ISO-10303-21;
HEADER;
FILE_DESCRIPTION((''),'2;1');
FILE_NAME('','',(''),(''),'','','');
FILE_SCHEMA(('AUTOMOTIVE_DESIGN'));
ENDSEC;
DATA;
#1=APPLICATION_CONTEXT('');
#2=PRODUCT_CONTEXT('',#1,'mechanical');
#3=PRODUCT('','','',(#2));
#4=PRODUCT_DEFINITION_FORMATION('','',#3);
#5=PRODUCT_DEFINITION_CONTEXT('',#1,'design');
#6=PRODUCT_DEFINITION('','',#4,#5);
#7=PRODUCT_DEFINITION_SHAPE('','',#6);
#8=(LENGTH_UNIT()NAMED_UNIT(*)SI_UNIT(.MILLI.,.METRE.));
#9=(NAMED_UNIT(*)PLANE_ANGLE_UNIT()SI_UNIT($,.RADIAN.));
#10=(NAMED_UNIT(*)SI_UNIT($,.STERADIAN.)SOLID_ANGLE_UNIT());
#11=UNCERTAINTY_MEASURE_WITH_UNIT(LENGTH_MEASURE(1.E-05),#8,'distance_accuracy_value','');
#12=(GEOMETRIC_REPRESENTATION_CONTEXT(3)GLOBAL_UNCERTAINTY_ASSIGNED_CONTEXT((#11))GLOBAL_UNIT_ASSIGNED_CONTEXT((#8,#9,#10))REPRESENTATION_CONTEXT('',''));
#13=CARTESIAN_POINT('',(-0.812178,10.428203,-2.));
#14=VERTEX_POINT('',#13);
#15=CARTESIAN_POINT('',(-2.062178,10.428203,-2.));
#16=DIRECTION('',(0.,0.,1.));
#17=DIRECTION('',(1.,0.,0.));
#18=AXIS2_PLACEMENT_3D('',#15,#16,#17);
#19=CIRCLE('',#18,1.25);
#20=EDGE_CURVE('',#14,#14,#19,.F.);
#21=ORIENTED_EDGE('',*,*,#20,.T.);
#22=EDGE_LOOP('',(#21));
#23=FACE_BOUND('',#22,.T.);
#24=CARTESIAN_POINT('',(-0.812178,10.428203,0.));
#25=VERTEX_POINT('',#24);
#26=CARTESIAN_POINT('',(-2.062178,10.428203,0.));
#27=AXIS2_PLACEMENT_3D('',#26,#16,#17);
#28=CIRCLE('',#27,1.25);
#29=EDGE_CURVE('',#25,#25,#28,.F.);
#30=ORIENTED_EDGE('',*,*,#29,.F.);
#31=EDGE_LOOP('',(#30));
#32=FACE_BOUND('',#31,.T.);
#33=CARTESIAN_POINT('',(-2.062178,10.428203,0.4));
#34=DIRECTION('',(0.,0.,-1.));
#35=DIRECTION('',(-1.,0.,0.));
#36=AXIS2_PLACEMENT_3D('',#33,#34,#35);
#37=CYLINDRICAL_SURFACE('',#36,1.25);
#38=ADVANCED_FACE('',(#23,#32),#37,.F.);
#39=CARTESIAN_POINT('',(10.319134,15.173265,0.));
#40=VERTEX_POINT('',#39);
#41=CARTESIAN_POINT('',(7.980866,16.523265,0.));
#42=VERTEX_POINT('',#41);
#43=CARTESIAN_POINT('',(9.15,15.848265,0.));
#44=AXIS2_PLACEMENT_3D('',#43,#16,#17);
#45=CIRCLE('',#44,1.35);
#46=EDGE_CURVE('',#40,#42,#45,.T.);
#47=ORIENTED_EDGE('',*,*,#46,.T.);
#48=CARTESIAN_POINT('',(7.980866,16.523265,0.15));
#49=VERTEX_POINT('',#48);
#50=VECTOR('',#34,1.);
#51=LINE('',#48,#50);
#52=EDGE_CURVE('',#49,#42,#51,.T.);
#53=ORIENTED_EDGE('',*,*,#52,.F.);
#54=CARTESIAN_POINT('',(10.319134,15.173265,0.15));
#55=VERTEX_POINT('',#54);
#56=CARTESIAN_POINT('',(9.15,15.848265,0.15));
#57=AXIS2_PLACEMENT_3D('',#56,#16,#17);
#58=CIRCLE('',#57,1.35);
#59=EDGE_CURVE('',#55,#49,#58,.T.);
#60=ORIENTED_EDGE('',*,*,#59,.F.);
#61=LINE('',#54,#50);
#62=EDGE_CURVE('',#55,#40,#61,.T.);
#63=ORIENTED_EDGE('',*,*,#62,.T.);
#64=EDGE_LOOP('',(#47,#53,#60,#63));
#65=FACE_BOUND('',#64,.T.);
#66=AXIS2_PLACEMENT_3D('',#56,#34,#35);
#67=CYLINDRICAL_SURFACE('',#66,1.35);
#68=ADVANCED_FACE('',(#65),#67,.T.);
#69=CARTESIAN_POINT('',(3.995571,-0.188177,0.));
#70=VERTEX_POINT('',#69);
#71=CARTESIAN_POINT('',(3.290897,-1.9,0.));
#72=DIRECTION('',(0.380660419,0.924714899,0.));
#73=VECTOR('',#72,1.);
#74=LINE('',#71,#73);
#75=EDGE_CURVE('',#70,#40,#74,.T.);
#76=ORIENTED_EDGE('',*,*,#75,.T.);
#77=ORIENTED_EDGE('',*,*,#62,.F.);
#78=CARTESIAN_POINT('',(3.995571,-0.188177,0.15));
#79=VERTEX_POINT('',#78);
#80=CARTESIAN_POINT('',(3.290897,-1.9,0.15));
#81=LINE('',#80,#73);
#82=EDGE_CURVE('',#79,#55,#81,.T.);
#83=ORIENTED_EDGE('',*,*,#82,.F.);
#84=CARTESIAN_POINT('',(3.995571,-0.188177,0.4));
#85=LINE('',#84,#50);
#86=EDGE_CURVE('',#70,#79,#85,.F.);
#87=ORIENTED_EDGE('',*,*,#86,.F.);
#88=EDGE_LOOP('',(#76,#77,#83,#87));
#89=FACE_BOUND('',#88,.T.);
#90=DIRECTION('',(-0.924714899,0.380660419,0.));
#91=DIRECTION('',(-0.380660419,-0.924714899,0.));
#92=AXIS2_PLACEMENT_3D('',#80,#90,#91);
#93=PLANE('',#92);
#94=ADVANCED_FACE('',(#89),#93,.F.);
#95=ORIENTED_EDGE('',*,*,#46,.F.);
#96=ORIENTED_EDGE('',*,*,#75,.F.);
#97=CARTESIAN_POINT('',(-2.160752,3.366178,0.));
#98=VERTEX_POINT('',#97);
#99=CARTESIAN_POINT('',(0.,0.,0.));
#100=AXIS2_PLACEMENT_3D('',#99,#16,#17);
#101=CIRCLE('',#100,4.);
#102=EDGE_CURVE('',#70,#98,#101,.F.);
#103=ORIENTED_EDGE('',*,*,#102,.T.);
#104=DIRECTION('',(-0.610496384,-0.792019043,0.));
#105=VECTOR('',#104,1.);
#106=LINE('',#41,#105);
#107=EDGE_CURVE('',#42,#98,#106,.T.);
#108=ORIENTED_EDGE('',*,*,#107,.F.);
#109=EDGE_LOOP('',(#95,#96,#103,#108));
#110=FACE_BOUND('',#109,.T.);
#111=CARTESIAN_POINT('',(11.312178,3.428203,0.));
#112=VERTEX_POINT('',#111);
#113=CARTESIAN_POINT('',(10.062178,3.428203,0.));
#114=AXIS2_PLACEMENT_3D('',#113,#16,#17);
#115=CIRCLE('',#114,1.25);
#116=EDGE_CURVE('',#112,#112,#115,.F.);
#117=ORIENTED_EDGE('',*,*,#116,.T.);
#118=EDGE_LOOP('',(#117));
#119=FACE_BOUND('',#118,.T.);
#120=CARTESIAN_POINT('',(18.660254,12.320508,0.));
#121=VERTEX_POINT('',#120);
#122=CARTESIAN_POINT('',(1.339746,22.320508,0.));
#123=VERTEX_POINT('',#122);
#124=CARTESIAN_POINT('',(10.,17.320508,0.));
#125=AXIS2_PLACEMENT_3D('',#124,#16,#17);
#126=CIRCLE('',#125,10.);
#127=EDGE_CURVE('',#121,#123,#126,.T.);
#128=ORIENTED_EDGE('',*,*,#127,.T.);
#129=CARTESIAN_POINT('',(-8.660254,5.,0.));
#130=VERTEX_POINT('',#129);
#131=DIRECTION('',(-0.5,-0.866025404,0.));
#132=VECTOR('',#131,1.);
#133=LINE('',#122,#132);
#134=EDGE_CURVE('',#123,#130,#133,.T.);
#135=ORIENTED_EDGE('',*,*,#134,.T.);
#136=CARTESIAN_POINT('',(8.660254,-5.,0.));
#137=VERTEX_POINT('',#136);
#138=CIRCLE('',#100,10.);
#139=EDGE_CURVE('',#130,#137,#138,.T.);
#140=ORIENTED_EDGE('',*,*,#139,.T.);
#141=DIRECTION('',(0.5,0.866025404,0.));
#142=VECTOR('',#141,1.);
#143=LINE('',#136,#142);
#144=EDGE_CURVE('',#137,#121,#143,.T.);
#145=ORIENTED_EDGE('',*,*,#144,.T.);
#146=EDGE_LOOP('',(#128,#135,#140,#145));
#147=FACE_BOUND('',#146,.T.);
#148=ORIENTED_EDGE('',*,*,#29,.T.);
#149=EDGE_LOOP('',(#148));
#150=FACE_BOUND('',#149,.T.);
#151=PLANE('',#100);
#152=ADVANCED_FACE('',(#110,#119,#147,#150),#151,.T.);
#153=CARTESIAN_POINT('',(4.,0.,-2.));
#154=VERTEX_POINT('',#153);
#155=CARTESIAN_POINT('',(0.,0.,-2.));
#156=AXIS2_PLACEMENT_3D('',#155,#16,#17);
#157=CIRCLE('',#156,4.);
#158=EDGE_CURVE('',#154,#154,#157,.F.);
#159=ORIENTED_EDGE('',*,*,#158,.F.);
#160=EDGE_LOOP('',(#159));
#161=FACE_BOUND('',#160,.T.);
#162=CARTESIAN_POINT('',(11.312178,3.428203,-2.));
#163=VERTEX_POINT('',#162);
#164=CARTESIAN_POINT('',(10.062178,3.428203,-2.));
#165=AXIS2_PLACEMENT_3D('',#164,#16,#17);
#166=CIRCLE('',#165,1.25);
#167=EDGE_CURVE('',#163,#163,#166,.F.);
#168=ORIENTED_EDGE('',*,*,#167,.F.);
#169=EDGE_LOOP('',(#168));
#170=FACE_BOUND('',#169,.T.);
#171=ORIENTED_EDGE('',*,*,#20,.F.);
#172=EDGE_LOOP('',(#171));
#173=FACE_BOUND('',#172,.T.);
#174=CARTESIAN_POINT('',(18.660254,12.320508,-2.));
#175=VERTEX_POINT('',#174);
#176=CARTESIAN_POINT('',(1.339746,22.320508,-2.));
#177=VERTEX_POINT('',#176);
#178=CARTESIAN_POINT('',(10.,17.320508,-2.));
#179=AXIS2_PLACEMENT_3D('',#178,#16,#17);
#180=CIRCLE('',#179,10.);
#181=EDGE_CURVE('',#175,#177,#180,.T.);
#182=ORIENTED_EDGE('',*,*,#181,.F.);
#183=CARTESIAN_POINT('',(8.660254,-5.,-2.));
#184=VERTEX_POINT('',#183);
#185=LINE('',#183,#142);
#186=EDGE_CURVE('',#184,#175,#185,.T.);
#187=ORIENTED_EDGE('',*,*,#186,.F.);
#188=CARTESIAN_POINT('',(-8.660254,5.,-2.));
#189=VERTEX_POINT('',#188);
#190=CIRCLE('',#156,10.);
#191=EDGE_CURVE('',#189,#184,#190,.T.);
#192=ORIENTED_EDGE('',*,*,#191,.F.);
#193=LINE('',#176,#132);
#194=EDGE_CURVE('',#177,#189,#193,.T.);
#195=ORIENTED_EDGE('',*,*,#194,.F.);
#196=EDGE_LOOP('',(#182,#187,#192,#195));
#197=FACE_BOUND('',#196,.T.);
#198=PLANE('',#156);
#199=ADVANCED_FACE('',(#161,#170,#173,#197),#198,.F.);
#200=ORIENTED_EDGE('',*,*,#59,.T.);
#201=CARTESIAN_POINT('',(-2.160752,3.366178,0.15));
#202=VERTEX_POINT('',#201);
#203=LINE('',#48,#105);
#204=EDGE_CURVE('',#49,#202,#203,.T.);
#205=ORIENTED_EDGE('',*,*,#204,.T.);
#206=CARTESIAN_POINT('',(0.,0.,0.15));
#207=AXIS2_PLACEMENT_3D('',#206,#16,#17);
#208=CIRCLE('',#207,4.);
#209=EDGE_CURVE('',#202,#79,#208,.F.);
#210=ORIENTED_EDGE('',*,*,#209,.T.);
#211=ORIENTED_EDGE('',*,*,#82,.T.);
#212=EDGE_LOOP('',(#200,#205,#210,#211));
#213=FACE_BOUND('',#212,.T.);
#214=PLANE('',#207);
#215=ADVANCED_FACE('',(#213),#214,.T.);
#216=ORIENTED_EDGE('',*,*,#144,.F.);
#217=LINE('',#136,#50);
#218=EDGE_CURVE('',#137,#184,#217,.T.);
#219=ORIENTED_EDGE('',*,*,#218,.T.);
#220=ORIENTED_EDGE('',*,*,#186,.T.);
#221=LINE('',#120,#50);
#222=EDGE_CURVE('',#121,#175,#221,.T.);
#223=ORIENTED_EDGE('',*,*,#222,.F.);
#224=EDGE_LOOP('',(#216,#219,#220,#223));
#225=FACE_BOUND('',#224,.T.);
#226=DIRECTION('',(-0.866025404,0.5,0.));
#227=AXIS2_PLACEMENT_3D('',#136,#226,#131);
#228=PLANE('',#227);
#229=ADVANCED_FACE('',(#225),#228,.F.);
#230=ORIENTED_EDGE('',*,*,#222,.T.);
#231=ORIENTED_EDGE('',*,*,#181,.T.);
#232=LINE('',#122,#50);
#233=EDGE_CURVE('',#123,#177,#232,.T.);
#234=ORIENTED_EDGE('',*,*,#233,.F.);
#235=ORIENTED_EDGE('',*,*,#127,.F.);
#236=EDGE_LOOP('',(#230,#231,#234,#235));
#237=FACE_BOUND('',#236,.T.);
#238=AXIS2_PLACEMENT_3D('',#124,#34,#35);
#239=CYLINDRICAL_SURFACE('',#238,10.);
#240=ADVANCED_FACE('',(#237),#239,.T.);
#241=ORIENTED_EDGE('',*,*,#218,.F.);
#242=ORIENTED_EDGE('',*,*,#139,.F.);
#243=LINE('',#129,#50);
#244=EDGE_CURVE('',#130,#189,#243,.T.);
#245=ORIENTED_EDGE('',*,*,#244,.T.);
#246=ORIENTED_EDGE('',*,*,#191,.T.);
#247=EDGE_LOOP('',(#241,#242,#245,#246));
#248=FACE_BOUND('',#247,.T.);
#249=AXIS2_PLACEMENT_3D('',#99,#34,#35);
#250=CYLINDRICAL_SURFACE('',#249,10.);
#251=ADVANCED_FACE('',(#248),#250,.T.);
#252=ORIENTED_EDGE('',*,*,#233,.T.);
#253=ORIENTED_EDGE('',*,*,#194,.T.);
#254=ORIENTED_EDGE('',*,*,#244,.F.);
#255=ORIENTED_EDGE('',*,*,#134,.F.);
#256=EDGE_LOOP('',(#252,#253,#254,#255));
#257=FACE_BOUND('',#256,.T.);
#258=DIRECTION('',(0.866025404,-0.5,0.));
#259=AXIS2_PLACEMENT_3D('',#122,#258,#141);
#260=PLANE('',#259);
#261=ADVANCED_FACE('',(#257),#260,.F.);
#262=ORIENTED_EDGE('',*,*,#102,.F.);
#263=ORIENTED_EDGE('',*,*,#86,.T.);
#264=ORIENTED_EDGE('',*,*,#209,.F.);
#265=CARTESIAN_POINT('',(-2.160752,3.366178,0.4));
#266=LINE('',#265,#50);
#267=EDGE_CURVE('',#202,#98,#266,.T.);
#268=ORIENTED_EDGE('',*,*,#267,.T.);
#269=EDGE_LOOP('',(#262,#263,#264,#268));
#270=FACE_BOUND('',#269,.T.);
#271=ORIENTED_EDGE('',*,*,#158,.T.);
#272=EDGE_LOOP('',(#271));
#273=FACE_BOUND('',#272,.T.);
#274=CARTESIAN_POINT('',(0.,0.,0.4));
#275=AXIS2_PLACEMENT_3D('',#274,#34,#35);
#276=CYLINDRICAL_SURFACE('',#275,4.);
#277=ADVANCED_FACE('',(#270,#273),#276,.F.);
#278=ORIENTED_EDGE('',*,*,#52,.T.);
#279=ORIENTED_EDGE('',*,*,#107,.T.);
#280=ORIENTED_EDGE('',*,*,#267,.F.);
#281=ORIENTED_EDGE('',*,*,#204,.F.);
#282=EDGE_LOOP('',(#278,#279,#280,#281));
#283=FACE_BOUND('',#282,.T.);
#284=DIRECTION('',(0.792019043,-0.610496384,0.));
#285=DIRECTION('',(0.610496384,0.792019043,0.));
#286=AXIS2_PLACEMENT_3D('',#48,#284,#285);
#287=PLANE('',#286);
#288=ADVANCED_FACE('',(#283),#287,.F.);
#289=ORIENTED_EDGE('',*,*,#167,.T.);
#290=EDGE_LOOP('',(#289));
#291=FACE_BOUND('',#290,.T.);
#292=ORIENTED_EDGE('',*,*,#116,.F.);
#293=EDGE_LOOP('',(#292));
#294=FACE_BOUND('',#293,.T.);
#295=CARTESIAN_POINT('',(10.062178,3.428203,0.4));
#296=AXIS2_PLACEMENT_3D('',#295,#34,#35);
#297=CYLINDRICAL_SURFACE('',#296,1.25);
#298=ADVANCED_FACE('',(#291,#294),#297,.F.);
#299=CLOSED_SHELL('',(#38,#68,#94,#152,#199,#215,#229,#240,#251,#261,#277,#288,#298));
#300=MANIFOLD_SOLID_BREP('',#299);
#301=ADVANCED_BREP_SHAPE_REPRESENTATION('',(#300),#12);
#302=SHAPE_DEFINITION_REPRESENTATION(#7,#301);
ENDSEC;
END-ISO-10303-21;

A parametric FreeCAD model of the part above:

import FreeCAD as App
import Part
import Sketcher
from FreeCAD import Vector
Q = App.Units.Quantity

doc = App.newDocument("Part")
body = doc.addObject("PartDesign::Body", "Body")

# Sketch on XY plane
sketch1 = body.newObject("Sketcher::SketchObject", "Sketch")
sketch1.AttachmentSupport = (doc.getObject("XY_Plane"), [""])
sketch1.MapMode = "FlatFace"
sketch1.AttachmentOffset = App.Placement(Vector(0, 0, -2), App.Rotation())
sketch1.addGeometry([
    Part.LineSegment(Vector(9, -5, 0), Vector(19, 12, 0)),
    Part.LineSegment(Vector(19, 12, 0), Vector(1, 22, 0)),
    Part.LineSegment(Vector(1, 22, 0), Vector(-9, 5, 0)),
    Part.LineSegment(Vector(-9, 5, 0), Vector(9, -5, 0)),
], False)
sketch1.addConstraint([
    Sketcher.Constraint("Coincident", 0, 2, 1, 1),
    Sketcher.Constraint("Coincident", 1, 2, 2, 1),
    Sketcher.Constraint("Coincident", 2, 2, 3, 1),
    Sketcher.Constraint("Coincident", 3, 2, 0, 1),
    Sketcher.Constraint("Symmetric", 2, 2, 3, 2, -1, 1),
    Sketcher.Constraint("Perpendicular", 0, 1),
    Sketcher.Constraint("Perpendicular", 1, 2),
    Sketcher.Constraint("Perpendicular", 2, 3),
    Sketcher.Constraint("Equal", 0, 1),
    Sketcher.Constraint("Angle", 0, Q("60 deg")),
    Sketcher.Constraint("Distance", 0, Q("20 mm")),
])
pad1 = body.newObject("PartDesign::Pad", "Pad")
pad1.Profile = sketch1
pad1.Length = 2

# Sketch on XY plane
sketch2 = body.newObject("Sketcher::SketchObject", "Sketch001")
sketch2.AttachmentSupport = (doc.getObject("XY_Plane"), [""])
sketch2.MapMode = "FlatFace"
sketch2.AttachmentOffset = App.Placement(Vector(0, 0, -2), App.Rotation())
sketch2.addGeometry(Part.Circle(Vector(0, 0, 0), Vector(0, 0, 1), 10), False)
sketch2.addConstraint([
    Sketcher.Constraint("Coincident", 0, 3, -1, 1),
    Sketcher.Constraint("Diameter", 0, Q("20 mm")),
])
pad2 = body.newObject("PartDesign::Pad", "Pad001")
pad2.Profile = sketch2
pad2.Length = 2

# Sketch on XY plane
sketch3 = body.newObject("Sketcher::SketchObject", "Sketch002")
sketch3.AttachmentSupport = (doc.getObject("XY_Plane"), [""])
sketch3.MapMode = "FlatFace"
sketch3.AttachmentOffset = App.Placement(Vector(0, 0, -2), App.Rotation())
sketch3.addGeometry(Part.Circle(Vector(10, 17, 0), Vector(0, 0, 1), 10), False)
sketch3.addConstraint([
    Sketcher.Constraint("Diameter", 0, Q("20 mm")),
    Sketcher.Constraint("DistanceX", -1, 1, 0, 3, Q("10 mm")),
    Sketcher.Constraint("DistanceY", -1, 1, 0, 3, Q("17.320508 mm")),
])
pad3 = body.newObject("PartDesign::Pad", "Pad002")
pad3.Profile = sketch3
pad3.Length = 2

# Sketch on XY plane
sketch4 = body.newObject("Sketcher::SketchObject", "Sketch003")
sketch4.AttachmentSupport = (doc.getObject("XY_Plane"), [""])
sketch4.MapMode = "FlatFace"
sketch4.addGeometry([
    Part.LineSegment(Vector(3.3, -1.9, 0), Vector(10.3, 15.2, 0)),
    Part.LineSegment(Vector(10.3, 15.2, 0), Vector(8, 16.5, 0)),
    Part.LineSegment(Vector(8, 16.5, 0), Vector(-3.3, 1.9, 0)),
    Part.LineSegment(Vector(-3.3, 1.9, 0), Vector(3.3, -1.9, 0)),
], False)
sketch4.addConstraint([
    Sketcher.Constraint("Coincident", 0, 2, 1, 1),
    Sketcher.Constraint("Coincident", 1, 2, 2, 1),
    Sketcher.Constraint("Coincident", 2, 2, 3, 1),
    Sketcher.Constraint("Coincident", 3, 2, 0, 1),
    Sketcher.Constraint("Symmetric", 2, 2, 3, 2, -1, 1),
    Sketcher.Constraint("Parallel", 1, 3),
    Sketcher.Constraint("Equal", 0, 2),
    Sketcher.Constraint("Angle", 1, Q("150 deg")),
    Sketcher.Constraint("Distance", 1, Q("2.7 mm")),
    Sketcher.Constraint("Distance", 3, Q("7.6 mm")),
    Sketcher.Constraint("DistanceX", 2, 2, 0, 2, Q("13.610031 mm")),
])
pad4 = body.newObject("PartDesign::Pad", "Pad003")
pad4.Profile = sketch4
pad4.Length = 0.15

# Sketch on XY plane
sketch5 = body.newObject("Sketcher::SketchObject", "Sketch004")
sketch5.AttachmentSupport = (doc.getObject("XY_Plane"), [""])
sketch5.MapMode = "FlatFace"
sketch5.addGeometry(Part.Circle(Vector(0, 0, 0), Vector(0, 0, 1), 3.8), False)
sketch5.addConstraint([
    Sketcher.Constraint("Coincident", 0, 3, -1, 1),
    Sketcher.Constraint("Diameter", 0, Q("7.6 mm")),
])
pad5 = body.newObject("PartDesign::Pad", "Pad004")
pad5.Profile = sketch5
pad5.Length = 0.15

# Sketch on XY plane
sketch6 = body.newObject("Sketcher::SketchObject", "Sketch005")
sketch6.AttachmentSupport = (doc.getObject("XY_Plane"), [""])
sketch6.MapMode = "FlatFace"
sketch6.addGeometry(Part.Circle(Vector(9.2, 15.8, 0), Vector(0, 0, 1), 1.4), False)
sketch6.addConstraint([
    Sketcher.Constraint("Diameter", 0, Q("2.7 mm")),
    Sketcher.Constraint("DistanceX", -1, 1, 0, 3, Q("9.15 mm")),
    Sketcher.Constraint("DistanceY", -1, 1, 0, 3, Q("15.848265 mm")),
])
pad6 = body.newObject("PartDesign::Pad", "Pad005")
pad6.Profile = sketch6
pad6.Length = 0.15

# Sketch on XY plane
sketch7 = body.newObject("Sketcher::SketchObject", "Sketch006")
sketch7.AttachmentSupport = (doc.getObject("XY_Plane"), [""])
sketch7.MapMode = "FlatFace"
sketch7.AttachmentOffset = App.Placement(Vector(0, 0, -2.1), App.Rotation())
sketch7.addGeometry(Part.Circle(Vector(0, 0, 0), Vector(0, 0, 1), 4), False)
sketch7.addConstraint([
    Sketcher.Constraint("Coincident", 0, 3, -1, 1),
    Sketcher.Constraint("Diameter", 0, Q("8 mm")),
])
pocket1 = body.newObject("PartDesign::Pocket", "Pocket")
pocket1.Profile = sketch7
pocket1.Length = 2.5
pocket1.Reversed = True

# Sketch on XY plane
sketch8 = body.newObject("Sketcher::SketchObject", "Sketch007")
sketch8.AttachmentSupport = (doc.getObject("XY_Plane"), [""])
sketch8.MapMode = "FlatFace"
sketch8.AttachmentOffset = App.Placement(Vector(0, 0, -2.1), App.Rotation())
sketch8.addGeometry([
    Part.Circle(Vector(10.1, 3.4, 0), Vector(0, 0, 1), 1.2),
    Part.Circle(Vector(-2.1, 10.4, 0), Vector(0, 0, 1), 1.2),
], False)
sketch8.addConstraint([
    Sketcher.Constraint("Equal", 0, 1),
    Sketcher.Constraint("Diameter", 0, Q("2.5 mm")),
    Sketcher.Constraint("DistanceY", 0, 3, 1, 3, Q("7 mm")),
    Sketcher.Constraint("DistanceX", -1, 1, 0, 3, Q("10.062178 mm")),
    Sketcher.Constraint("DistanceY", -1, 1, 0, 3, Q("3.428203 mm")),
    Sketcher.Constraint("DistanceX", 1, 3, -1, 1, Q("2.062178 mm")),
])
pocket2 = body.newObject("PartDesign::Pocket", "Pocket001")
pocket2.Profile = sketch8
pocket2.Length = 2.5
pocket2.Reversed = True

doc.recompute()
